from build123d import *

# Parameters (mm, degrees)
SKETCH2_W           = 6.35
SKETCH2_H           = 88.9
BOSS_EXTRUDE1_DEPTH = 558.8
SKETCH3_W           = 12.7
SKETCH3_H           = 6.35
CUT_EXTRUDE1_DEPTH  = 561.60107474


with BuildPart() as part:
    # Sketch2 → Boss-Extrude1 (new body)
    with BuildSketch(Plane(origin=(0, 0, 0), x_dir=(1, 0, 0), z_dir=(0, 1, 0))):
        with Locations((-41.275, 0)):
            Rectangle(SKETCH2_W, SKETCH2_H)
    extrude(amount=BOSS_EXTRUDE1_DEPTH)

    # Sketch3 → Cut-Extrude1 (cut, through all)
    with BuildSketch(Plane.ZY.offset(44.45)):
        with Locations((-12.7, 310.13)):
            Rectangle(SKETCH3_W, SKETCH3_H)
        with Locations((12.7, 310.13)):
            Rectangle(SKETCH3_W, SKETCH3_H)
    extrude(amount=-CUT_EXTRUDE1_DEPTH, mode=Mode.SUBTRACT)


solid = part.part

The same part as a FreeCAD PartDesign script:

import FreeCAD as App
import Part
import Sketcher
from FreeCAD import Vector
Q = App.Units.Quantity

doc = App.newDocument("Part")
body = doc.addObject("PartDesign::Body", "Body")

sketch1 = body.newObject("Sketcher::SketchObject", "Sketch")
sketch1.AttachmentSupport = (doc.getObject("XZ_Plane"), [""])
sketch1.MapMode = "FlatFace"
sketch1.addGeometry([
    Part.LineSegment(Vector(-44, -44, 0), Vector(-44, 44, 0)),
    Part.LineSegment(Vector(-44, 44, 0), Vector(-38, 44, 0)),
    Part.LineSegment(Vector(-38, 44, 0), Vector(-38, -44, 0)),
    Part.LineSegment(Vector(-38, -44, 0), Vector(-44, -44, 0)),
], False)
sketch1.addConstraint([
    Sketcher.Constraint("Coincident", 0, 2, 1, 1),
    Sketcher.Constraint("Coincident", 1, 2, 2, 1),
    Sketcher.Constraint("Coincident", 2, 2, 3, 1),
    Sketcher.Constraint("Coincident", 3, 2, 0, 1),
    Sketcher.Constraint("Vertical", 0),
    Sketcher.Constraint("Horizontal", 1),
    Sketcher.Constraint("Vertical", 2),
    Sketcher.Constraint("Horizontal", 3),
    Sketcher.Constraint("DistanceY", 0, 1, 0, 2, Q("3.5 in")),
    Sketcher.Constraint("DistanceX", 1, 1, 1, 2, Q("0.25 in")),
    Sketcher.Constraint("DistanceX", 1, 2, -1, 1, Q("1.5 in")),
    Sketcher.Constraint("DistanceY", -1, 1, 0, 2, Q("1.75 in")),
])
pad1 = body.newObject("PartDesign::Pad", "Pad")
pad1.Profile = sketch1
pad1.Length = Q("22 in")
pad1.Reversed = True

sketch2 = body.newObject("Sketcher::SketchObject", "Sketch001")
sketch2.AttachmentSupport = (doc.getObject("YZ_Plane"), [""])
sketch2.MapMode = "FlatFace"
sketch2.AttachmentOffset = App.Placement(Vector(0, 0, -1.75 * 25.4), App.Rotation())
sketch2.addGeometry([
    Part.LineSegment(Vector(313, -19, 0), Vector(307, -19, 0)),
    Part.LineSegment(Vector(307, -19, 0), Vector(307, -6, 0)),
    Part.LineSegment(Vector(307, -6, 0), Vector(313, -6, 0)),
    Part.LineSegment(Vector(313, -6, 0), Vector(313, -19, 0)),
    Part.LineSegment(Vector(313, 6, 0), Vector(307, 6, 0)),
    Part.LineSegment(Vector(307, 6, 0), Vector(307, 19, 0)),
    Part.LineSegment(Vector(307, 19, 0), Vector(313, 19, 0)),
    Part.LineSegment(Vector(313, 19, 0), Vector(313, 6, 0)),
], False)
sketch2.addConstraint([
    Sketcher.Constraint("Coincident", 0, 2, 1, 1),
    Sketcher.Constraint("Coincident", 1, 2, 2, 1),
    Sketcher.Constraint("Coincident", 2, 2, 3, 1),
    Sketcher.Constraint("Coincident", 3, 2, 0, 1),
    Sketcher.Constraint("Coincident", 4, 2, 5, 1),
    Sketcher.Constraint("Coincident", 5, 2, 6, 1),
    Sketcher.Constraint("Coincident", 6, 2, 7, 1),
    Sketcher.Constraint("Coincident", 7, 2, 4, 1),
    Sketcher.Constraint("Horizontal", 0),
    Sketcher.Constraint("Vertical", 1),
    Sketcher.Constraint("Horizontal", 2),
    Sketcher.Constraint("Vertical", 3),
    Sketcher.Constraint("Horizontal", 4),
    Sketcher.Constraint("Vertical", 5),
    Sketcher.Constraint("Horizontal", 6),
    Sketcher.Constraint("Vertical", 7),
    Sketcher.Constraint("Symmetric", 1, 2, 4, 2, -1),
    Sketcher.Constraint("Symmetric", 3, 2, 6, 2, -1),
    Sketcher.Constraint("DistanceY", 1, 1, 1, 2, Q("0.5 in")),
    Sketcher.Constraint("DistanceY", 0, 2, 4, 2, Q("1 in")),
    Sketcher.Constraint("DistanceX", 0, 2, 0, 1, Q("0.25 in")),
    Sketcher.Constraint("DistanceX", -1, 1, 0, 2, Q("306.955 mm")),
])
pocket1 = body.newObject("PartDesign::Pocket", "Pocket")
pocket1.Profile = sketch2
pocket1.Type = "ThroughAll"
pocket1.Reversed = True

doc.recompute()
